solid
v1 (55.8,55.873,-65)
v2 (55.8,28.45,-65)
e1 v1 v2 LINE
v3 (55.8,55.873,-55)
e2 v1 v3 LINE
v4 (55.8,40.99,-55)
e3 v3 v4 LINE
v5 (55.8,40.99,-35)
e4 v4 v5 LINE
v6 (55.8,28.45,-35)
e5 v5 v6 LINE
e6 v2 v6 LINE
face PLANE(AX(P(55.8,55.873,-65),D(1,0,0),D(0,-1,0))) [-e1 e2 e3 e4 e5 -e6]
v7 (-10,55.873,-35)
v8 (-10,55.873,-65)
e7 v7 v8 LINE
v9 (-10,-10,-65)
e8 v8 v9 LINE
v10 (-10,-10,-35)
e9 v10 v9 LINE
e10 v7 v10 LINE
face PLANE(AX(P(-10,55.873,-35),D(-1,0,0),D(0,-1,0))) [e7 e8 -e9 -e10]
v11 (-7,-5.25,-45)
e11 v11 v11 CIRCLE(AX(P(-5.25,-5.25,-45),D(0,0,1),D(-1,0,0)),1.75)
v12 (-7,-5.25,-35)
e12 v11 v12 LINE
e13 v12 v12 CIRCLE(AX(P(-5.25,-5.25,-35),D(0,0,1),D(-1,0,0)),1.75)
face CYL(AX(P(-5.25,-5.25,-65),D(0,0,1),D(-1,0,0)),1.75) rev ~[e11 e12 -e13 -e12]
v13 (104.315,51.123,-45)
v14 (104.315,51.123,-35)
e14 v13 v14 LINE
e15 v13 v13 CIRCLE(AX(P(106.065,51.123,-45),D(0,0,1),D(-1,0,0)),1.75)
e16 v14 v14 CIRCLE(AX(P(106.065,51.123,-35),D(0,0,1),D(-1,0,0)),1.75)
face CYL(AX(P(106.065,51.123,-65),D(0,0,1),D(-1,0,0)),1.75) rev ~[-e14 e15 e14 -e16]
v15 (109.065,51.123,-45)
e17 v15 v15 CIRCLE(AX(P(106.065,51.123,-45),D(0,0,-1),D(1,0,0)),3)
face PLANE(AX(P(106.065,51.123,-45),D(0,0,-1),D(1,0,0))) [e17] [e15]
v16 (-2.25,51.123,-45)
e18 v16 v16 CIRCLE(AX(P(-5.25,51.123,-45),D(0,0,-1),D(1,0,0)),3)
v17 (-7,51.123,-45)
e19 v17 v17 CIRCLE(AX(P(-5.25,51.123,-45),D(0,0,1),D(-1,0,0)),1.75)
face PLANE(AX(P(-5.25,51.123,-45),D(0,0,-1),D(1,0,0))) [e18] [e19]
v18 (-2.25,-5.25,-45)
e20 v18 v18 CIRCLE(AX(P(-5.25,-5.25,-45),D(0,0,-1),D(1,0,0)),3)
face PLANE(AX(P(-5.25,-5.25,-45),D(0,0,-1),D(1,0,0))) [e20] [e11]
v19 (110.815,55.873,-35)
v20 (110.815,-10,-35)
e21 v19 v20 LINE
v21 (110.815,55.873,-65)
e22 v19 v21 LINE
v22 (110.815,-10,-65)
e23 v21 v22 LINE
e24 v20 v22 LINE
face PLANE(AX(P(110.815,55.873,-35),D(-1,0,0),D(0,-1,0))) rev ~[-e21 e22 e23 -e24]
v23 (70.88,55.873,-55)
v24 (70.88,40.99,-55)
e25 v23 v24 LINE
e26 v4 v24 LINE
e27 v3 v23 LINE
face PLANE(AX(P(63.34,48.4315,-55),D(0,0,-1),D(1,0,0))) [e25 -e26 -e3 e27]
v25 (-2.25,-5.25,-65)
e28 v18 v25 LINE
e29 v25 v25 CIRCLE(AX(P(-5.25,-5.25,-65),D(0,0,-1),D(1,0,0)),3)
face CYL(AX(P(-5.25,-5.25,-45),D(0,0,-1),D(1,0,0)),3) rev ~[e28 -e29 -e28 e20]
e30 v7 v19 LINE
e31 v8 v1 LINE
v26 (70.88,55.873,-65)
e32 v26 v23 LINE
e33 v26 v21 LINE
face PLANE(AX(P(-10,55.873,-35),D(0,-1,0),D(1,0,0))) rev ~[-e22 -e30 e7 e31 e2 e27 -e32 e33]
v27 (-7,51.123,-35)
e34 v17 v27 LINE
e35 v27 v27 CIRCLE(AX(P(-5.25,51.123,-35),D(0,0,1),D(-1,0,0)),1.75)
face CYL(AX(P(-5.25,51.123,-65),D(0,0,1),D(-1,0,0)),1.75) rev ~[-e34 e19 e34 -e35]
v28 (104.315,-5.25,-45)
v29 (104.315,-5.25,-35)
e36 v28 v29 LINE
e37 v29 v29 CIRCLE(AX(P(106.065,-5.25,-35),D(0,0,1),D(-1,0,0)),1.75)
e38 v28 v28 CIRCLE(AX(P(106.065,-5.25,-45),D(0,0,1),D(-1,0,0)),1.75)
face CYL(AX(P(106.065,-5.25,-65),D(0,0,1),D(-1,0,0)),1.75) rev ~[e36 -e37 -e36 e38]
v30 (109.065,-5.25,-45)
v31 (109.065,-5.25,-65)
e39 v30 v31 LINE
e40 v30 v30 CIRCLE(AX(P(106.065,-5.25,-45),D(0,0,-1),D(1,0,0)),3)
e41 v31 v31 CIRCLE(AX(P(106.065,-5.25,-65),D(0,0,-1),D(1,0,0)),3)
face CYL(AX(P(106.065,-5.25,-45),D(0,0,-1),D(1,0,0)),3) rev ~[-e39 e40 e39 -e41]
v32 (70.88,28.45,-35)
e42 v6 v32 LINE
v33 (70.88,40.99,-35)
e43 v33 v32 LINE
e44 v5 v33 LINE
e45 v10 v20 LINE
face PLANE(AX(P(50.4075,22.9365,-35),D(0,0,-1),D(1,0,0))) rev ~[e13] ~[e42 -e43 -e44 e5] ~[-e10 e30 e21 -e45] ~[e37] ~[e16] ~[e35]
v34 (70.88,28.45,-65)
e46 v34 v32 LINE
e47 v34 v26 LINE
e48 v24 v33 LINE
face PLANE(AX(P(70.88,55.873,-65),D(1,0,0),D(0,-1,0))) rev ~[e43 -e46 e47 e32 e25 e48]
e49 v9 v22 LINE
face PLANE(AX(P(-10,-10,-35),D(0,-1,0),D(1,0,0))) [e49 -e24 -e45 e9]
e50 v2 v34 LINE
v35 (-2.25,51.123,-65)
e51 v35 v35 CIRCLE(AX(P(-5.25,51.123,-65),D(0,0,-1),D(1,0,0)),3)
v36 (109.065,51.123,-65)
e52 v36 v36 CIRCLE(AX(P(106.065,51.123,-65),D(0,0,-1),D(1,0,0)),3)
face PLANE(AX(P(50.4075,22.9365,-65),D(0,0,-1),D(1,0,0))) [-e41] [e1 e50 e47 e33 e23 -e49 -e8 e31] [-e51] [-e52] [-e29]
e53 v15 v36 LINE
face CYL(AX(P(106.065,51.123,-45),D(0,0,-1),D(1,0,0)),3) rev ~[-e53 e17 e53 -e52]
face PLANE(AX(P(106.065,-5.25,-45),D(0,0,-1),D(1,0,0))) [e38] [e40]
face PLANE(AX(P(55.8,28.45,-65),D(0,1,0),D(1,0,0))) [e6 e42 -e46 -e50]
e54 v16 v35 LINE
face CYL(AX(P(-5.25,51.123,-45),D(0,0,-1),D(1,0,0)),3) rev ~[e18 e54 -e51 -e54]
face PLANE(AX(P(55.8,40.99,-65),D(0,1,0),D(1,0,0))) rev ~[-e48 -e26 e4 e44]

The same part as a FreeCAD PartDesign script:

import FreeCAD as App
import Part
import Sketcher
from FreeCAD import Vector
Q = App.Units.Quantity

doc = App.newDocument("Part")
body = doc.addObject("PartDesign::Body", "Body")

# Sketch on XY plane
sketch1 = body.newObject("Sketcher::SketchObject", "Sketch")
sketch1.AttachmentSupport = (doc.getObject("XY_Plane"), [""])
sketch1.MapMode = "FlatFace"
sketch1.AttachmentOffset = App.Placement(Vector(0, 0, -35), App.Rotation())
sketch1.addGeometry(Part.LineSegment(Vector(-10, -10, 0), Vector(-10, 55.873, 0)), False)
sketch1.addGeometry(Part.LineSegment(Vector(-10, 55.873, 0), Vector(110.815, 55.873, 0)), False)
sketch1.addGeometry(Part.LineSegment(Vector(110.815, 55.873, 0), Vector(110.815, -10, 0)), False)
sketch1.addGeometry(Part.LineSegment(Vector(110.815, -10, 0), Vector(-10, -10, 0)), False)
sketch1.addConstraint(Sketcher.Constraint("Coincident", 0, 2, 1, 1))
sketch1.addConstraint(Sketcher.Constraint("Coincident", 1, 2, 2, 1))
sketch1.addConstraint(Sketcher.Constraint("Coincident", 2, 2, 3, 1))
sketch1.addConstraint(Sketcher.Constraint("Coincident", 3, 2, 0, 1))
sketch1.addConstraint(Sketcher.Constraint("Vertical", 0))
sketch1.addConstraint(Sketcher.Constraint("Horizontal", 1))
sketch1.addConstraint(Sketcher.Constraint("Vertical", 2))
sketch1.addConstraint(Sketcher.Constraint("Horizontal", 3))
sketch1.addConstraint(Sketcher.Constraint("DistanceX", 0, 2, -1, 1, Q("10 mm")))
sketch1.addConstraint(Sketcher.Constraint("DistanceY", 2, 2, -1, 1, Q("10 mm")))
sketch1.addConstraint(Sketcher.Constraint("DistanceX", 1, 1, 1, 2, Q("120.815 mm")))
sketch1.addConstraint(Sketcher.Constraint("DistanceY", 0, 1, 0, 2, Q("65.873 mm")))
pad1 = body.newObject("PartDesign::Pad", "Pad")
pad1.Profile = sketch1
pad1.Length = 30
pad1.Reversed = True

# Sketch on XY plane
sketch2 = body.newObject("Sketcher::SketchObject", "Sketch001")
sketch2.AttachmentSupport = (doc.getObject("XY_Plane"), [""])
sketch2.MapMode = "FlatFace"
sketch2.AttachmentOffset = App.Placement(Vector(0, 0, -65), App.Rotation())
sketch2.addGeometry(Part.Circle(Vector(-5.25, -5.25, 0), Vector(0, 0, 1), 1.75), False)
sketch2.addGeometry(Part.Circle(Vector(106.065, -5.25, 0), Vector(0, 0, 1), 1.75), False)
sketch2.addGeometry(Part.Circle(Vector(106.065, 51.123, 0), Vector(0, 0, 1), 1.75), False)
sketch2.addGeometry(Part.Circle(Vector(-5.25, 51.123, 0), Vector(0, 0, 1), 1.75), False)
sketch2.addConstraint(Sketcher.Constraint("Equal", 0, 1))
sketch2.addConstraint(Sketcher.Constraint("Equal", 1, 2))
sketch2.addConstraint(Sketcher.Constraint("Equal", 2, 3))
sketch2.addConstraint(Sketcher.Constraint("Horizontal", 0, 3, 1, 3))
sketch2.addConstraint(Sketcher.Constraint("Horizontal", 2, 3, 3, 3))
sketch2.addConstraint(Sketcher.Constraint("Vertical", 1, 3, 2, 3))
sketch2.addConstraint(Sketcher.Constraint("Vertical", 0, 3, 3, 3))
sketch2.addConstraint(Sketcher.Constraint("Diameter", 0, Q("3.5 mm")))
sketch2.addConstraint(Sketcher.Constraint("DistanceX", 0, 3, -1, 1, Q("5.25 mm")))
sketch2.addConstraint(Sketcher.Constraint("DistanceY", 0, 3, -1, 1, Q("5.25 mm")))
sketch2.addConstraint(Sketcher.Constraint("DistanceX", -1, 1, 1, 3, Q("106.065 mm")))
sketch2.addConstraint(Sketcher.Constraint("DistanceY", -1, 1, 2, 3, Q("51.123 mm")))
doc.recompute()
hole = body.newObject("PartDesign::Hole", "Hole")
hole.Profile = sketch2
hole.ThreadType = "None"
hole.Diameter = 3.5
hole.DepthType = "ThroughAll"
hole.HoleCutType = "Counterbore"
hole.HoleCutDiameter = 6
hole.HoleCutDepth = 20
hole.Reversed = True

# Sketch on XY plane
sketch3 = body.newObject("Sketcher::SketchObject", "Sketch002")
sketch3.AttachmentSupport = (doc.getObject("XY_Plane"), [""])
sketch3.MapMode = "FlatFace"
sketch3.AttachmentOffset = App.Placement(Vector(0, 0, -65), App.Rotation())
sketch3.addGeometry(Part.LineSegment(Vector(55.8, 28.45, 0), Vector(55.8, 40.99, 0)), False)
sketch3.addGeometry(Part.LineSegment(Vector(55.8, 40.99, 0), Vector(70.88, 40.99, 0)), False)
sketch3.addGeometry(Part.LineSegment(Vector(70.88, 40.99, 0), Vector(70.88, 28.45, 0)), False)
sketch3.addGeometry(Part.LineSegment(Vector(70.88, 28.45, 0), Vector(55.8, 28.45, 0)), False)
sketch3.addConstraint(Sketcher.Constraint("Coincident", 0, 2, 1, 1))
sketch3.addConstraint(Sketcher.Constraint("Coincident", 1, 2, 2, 1))
sketch3.addConstraint(Sketcher.Constraint("Coincident", 2, 2, 3, 1))
sketch3.addConstraint(Sketcher.Constraint("Coincident", 3, 2, 0, 1))
sketch3.addConstraint(Sketcher.Constraint("Vertical", 0))
sketch3.addConstraint(Sketcher.Constraint("Horizontal", 1))
sketch3.addConstraint(Sketcher.Constraint("Vertical", 2))
sketch3.addConstraint(Sketcher.Constraint("Horizontal", 3))
sketch3.addConstraint(Sketcher.Constraint("DistanceX", 1, 1, 1, 2, Q("15.08 mm")))
sketch3.addConstraint(Sketcher.Constraint("DistanceY", 0, 1, 0, 2, Q("12.54 mm")))
sketch3.addConstraint(Sketcher.Constraint("DistanceX", -1, 1, 0, 2, Q("55.8 mm")))
sketch3.addConstraint(Sketcher.Constraint("DistanceY", -1, 1, 0, 2, Q("40.99 mm")))
pocket1 = body.newObject("PartDesign::Pocket", "Pocket")
pocket1.Profile = sketch3
pocket1.Type = "ThroughAll"
pocket1.Reversed = True

# Sketch on XY plane
sketch4 = body.newObject("Sketcher::SketchObject", "Sketch003")
sketch4.AttachmentSupport = (doc.getObject("XY_Plane"), [""])
sketch4.MapMode = "FlatFace"
sketch4.AttachmentOffset = App.Placement(Vector(0, 0, -65), App.Rotation())
sketch4.addGeometry(Part.LineSegment(Vector(55.8, 40.99, 0), Vector(55.8, 55.873, 0)), False)
sketch4.addGeometry(Part.LineSegment(Vector(55.8, 55.873, 0), Vector(70.88, 55.873, 0)), False)
sketch4.addGeometry(Part.LineSegment(Vector(70.88, 55.873, 0), Vector(70.88, 40.99, 0)), False)
sketch4.addGeometry(Part.LineSegment(Vector(70.88, 40.99, 0), Vector(55.8, 40.99, 0)), False)
sketch4.addConstraint(Sketcher.Constraint("Coincident", 0, 2, 1, 1))
sketch4.addConstraint(Sketcher.Constraint("Coincident", 1, 2, 2, 1))
sketch4.addConstraint(Sketcher.Constraint("Coincident", 2, 2, 3, 1))
sketch4.addConstraint(Sketcher.Constraint("Coincident", 3, 2, 0, 1))
sketch4.addConstraint(Sketcher.Constraint("Vertical", 0))
sketch4.addConstraint(Sketcher.Constraint("Horizontal", 1))
sketch4.addConstraint(Sketcher.Constraint("Vertical", 2))
sketch4.addConstraint(Sketcher.Constraint("Horizontal", 3))
sketch4.addConstraint(Sketcher.Constraint("DistanceX", 1, 1, 1, 2, Q("15.08 mm")))
sketch4.addConstraint(Sketcher.Constraint("DistanceX", -1, 1, 0, 2, Q("55.8 mm")))
sketch4.addConstraint(Sketcher.Constraint("DistanceY", 0, 1, 0, 2, Q("14.883 mm")))
sketch4.addConstraint(Sketcher.Constraint("DistanceY", -1, 1, 2, 2, Q("40.99 mm")))
pocket2 = body.newObject("PartDesign::Pocket", "Pocket001")
pocket2.Profile = sketch4
pocket2.Length = 10
pocket2.Reversed = True

doc.recompute()
